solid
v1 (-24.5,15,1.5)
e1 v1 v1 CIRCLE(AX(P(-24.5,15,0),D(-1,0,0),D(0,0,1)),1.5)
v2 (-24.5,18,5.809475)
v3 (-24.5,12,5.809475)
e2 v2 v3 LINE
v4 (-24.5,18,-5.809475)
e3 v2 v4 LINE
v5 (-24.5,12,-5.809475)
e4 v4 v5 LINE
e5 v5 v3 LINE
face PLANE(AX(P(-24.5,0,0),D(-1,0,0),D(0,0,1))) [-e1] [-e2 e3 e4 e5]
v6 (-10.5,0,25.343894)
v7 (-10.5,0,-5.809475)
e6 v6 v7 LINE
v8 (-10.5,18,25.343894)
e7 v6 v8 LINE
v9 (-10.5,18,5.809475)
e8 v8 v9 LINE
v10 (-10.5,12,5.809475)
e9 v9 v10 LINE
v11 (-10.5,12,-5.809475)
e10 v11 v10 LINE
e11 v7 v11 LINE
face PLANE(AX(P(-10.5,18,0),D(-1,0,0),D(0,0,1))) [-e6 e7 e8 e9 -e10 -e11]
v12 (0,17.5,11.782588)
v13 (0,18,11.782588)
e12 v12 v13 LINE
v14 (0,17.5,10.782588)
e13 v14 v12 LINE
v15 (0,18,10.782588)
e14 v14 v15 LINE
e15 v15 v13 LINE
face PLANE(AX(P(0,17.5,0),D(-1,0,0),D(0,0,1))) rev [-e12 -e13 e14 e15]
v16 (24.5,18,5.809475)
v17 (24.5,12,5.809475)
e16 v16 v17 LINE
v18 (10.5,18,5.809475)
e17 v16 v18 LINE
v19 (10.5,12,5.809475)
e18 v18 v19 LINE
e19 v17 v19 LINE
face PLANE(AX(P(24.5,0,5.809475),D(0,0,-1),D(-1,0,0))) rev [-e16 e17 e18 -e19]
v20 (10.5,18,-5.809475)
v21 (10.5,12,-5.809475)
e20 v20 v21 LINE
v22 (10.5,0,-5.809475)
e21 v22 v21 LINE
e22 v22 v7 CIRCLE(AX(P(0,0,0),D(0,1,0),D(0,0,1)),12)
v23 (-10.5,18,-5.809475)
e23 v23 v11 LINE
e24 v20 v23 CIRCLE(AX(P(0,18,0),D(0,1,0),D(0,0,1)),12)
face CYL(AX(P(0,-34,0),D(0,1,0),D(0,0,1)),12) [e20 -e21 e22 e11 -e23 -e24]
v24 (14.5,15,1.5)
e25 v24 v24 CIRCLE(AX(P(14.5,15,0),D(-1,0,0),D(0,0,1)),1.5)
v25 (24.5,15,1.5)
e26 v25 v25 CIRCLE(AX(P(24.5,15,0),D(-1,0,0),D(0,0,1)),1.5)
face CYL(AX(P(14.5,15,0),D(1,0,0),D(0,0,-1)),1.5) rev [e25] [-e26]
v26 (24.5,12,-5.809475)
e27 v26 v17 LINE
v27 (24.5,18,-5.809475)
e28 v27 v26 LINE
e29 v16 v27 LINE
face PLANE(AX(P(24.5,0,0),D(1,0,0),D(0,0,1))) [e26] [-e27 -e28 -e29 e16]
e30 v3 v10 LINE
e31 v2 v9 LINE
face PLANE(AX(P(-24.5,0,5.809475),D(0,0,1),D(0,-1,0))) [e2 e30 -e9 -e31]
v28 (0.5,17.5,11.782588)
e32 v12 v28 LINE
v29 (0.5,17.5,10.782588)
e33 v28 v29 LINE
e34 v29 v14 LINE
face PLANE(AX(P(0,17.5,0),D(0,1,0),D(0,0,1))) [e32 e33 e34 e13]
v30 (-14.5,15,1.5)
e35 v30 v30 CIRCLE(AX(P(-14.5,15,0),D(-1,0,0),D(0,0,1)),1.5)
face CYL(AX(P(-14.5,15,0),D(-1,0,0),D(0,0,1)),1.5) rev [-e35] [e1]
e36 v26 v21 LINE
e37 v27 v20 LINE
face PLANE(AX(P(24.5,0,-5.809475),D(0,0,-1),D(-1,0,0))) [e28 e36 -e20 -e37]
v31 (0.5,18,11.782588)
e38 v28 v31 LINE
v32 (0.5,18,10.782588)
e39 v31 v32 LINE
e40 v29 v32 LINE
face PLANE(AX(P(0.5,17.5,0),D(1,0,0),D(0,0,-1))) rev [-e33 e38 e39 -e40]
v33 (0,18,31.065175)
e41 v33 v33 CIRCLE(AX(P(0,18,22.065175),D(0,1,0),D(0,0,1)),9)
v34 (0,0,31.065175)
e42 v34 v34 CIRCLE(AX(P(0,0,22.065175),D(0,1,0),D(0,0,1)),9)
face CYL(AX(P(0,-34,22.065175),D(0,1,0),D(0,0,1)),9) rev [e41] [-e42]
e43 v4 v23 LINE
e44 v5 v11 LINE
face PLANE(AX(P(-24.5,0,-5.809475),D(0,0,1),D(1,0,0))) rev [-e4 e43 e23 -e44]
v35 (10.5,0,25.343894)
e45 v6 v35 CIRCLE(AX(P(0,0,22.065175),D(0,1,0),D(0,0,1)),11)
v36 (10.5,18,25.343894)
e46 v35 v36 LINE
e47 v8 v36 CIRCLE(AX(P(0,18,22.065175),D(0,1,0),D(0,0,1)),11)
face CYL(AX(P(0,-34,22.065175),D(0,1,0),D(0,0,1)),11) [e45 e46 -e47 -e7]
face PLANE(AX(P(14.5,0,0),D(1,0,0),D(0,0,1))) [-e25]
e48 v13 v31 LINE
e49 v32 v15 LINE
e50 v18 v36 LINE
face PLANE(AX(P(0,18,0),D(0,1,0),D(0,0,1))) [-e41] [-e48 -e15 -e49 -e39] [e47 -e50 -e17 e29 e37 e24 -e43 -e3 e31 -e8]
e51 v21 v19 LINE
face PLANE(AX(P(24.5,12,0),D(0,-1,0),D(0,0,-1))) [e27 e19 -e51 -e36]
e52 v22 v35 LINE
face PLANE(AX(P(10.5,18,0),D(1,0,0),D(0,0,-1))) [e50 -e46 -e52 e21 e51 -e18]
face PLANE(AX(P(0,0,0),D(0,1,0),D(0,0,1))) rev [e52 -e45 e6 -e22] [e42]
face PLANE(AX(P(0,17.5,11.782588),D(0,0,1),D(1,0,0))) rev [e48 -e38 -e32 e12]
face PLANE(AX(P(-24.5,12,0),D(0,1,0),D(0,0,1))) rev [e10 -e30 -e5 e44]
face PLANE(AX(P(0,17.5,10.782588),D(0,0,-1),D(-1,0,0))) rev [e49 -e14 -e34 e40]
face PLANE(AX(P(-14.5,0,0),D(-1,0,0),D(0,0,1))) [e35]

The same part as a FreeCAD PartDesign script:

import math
import FreeCAD as App
import Part
import Sketcher

V = App.Vector
Q = App.Units.Quantity


def add_polygon(sketch, points):
    """Adds a closed chain of lines whose ends are joined by coincident constraints."""
    first, n = sketch.GeometryCount, len(points)
    for a, b in zip(points, points[1:] + points[:1]):
        sketch.addGeometry(Part.LineSegment(App.Vector(*a, 0), App.Vector(*b, 0)), False)
    for i in range(n):
        sketch.addConstraint(Sketcher.Constraint("Coincident", first + i, 2, first + (i + 1) % n, 1))

doc = App.newDocument("Part")
body = doc.addObject("PartDesign::Body", "Body")

# Sketch on XZ plane
sketch1 = body.newObject("Sketcher::SketchObject", "Sketch")
sketch1.AttachmentSupport = (doc.getObject("XZ_Plane"), [""])
sketch1.MapMode = "FlatFace"
add_polygon(sketch1, [(-10.5, -12), (-10.5, 33.065175), (10.5, 33.065175), (10.5, -12)])  # lines 0-3
sketch1.addConstraint([
    Sketcher.Constraint("Vertical", 0),
    Sketcher.Constraint("Horizontal", 1),
    Sketcher.Constraint("Vertical", 2),
    Sketcher.Constraint("Horizontal", 3),
    Sketcher.Constraint("DistanceX", 1, 1, 1, 2, Q("21 mm")),
    Sketcher.Constraint("DistanceY", 2, 2, -1, 1, Q("12 mm")),
    Sketcher.Constraint("DistanceX", 0, 2, -1, 1, Q("10.5 mm")),
    Sketcher.Constraint("DistanceY", 0, 1, 0, 2, Q("45.065175 mm")),
])
pad1 = body.newObject("PartDesign::Pad", "Pad")
pad1.Profile = sketch1
pad1.Length = 18
pad1.Reversed = True

# Sketch on XZ plane
sketch2 = body.newObject("Sketcher::SketchObject", "Sketch001")
sketch2.AttachmentSupport = (doc.getObject("XZ_Plane"), [""])
sketch2.MapMode = "FlatFace"
sketch2.AttachmentOffset = App.Placement(V(0, 0, -18), App.Rotation())
sketch2.addGeometry([
    Part.LineSegment(V(0, 33.065175, 0), V(10.5, 33.065175, 0)),  # 0
    Part.LineSegment(V(10.5, 33.065175, 0), V(10.5, 25.343894, 0)),  # 1
    Part.ArcOfCircle(Part.Circle(V(0, 22.065175, 0), V(0, 0, 1), 11), math.radians(17.341443), math.radians(90)),  # 2
    Part.Circle(V(0, 22.065175, 0), V(0, 0, 1), 9),  # 3
    Part.LineSegment(V(-10.5, 33.065175, 0), V(0, 33.065175, 0)),  # 4
    Part.ArcOfCircle(Part.Circle(V(0, 22.065175, 0), V(0, 0, 1), 11), math.radians(90), math.radians(162.658557)),  # 5
    Part.LineSegment(V(-10.5, 25.343894, 0), V(-10.5, 33.065175, 0)),  # 6
], False)
sketch2.addConstraint([
    Sketcher.Constraint("Coincident", 0, 2, 1, 1),
    Sketcher.Constraint("Coincident", 1, 2, 2, 1),
    Sketcher.Constraint("Tangent", 2, 2, 0, 1),
    Sketcher.Constraint("Tangent", 4, 2, 5, 1),
    Sketcher.Constraint("Coincident", 5, 2, 6, 1),
    Sketcher.Constraint("Coincident", 6, 2, 4, 1),
    Sketcher.Constraint("Horizontal", 0),
    Sketcher.Constraint("Vertical", 1),
    Sketcher.Constraint("Horizontal", 4),
    Sketcher.Constraint("Vertical", 6),
    Sketcher.Constraint("Coincident", 3, 3, 2, 3),
    Sketcher.Constraint("Coincident", 5, 3, 2, 3),
    Sketcher.Constraint("Equal", 2, 5),
    Sketcher.Constraint("Symmetric", 1, 2, 5, 2, -2),
    Sketcher.Constraint("Diameter", 3, Q("18 mm")),
    Sketcher.Constraint("Radius", 2, Q("11 mm")),
    Sketcher.Constraint("DistanceX", 0, 1, 0, 2, Q("10.5 mm")),
    Sketcher.Constraint("DistanceY", -1, 1, 2, 3, Q("22.065175 mm")),
])
pocket1 = body.newObject("PartDesign::Pocket", "Pocket")
pocket1.Profile = sketch2
pocket1.Length = 52
pocket1.Reversed = True

# Sketch on XZ plane
sketch3 = body.newObject("Sketcher::SketchObject", "Sketch002")
sketch3.AttachmentSupport = (doc.getObject("XZ_Plane"), [""])
sketch3.MapMode = "FlatFace"
sketch3.AttachmentOffset = App.Placement(V(0, 0, -18), App.Rotation())
sketch3.addGeometry([
    Part.LineSegment(V(0, -12, 0), V(-10.5, -12, 0)),  # 0
    Part.LineSegment(V(-10.5, -12, 0), V(-10.5, -5.809475, 0)),  # 1
    Part.ArcOfCircle(Part.Circle(V(0, 0, 0), V(0, 0, 1), 12), math.radians(-151.044976), math.radians(-90)),  # 2
    Part.LineSegment(V(10.5, -12, 0), V(0, -12, 0)),  # 3
    Part.ArcOfCircle(Part.Circle(V(0, 0, 0), V(0, 0, 1), 12), math.radians(-90), math.radians(-28.955024)),  # 4
    Part.LineSegment(V(10.5, -5.809475, 0), V(10.5, -12, 0)),  # 5
], False)
sketch3.addConstraint([
    Sketcher.Constraint("Coincident", 0, 2, 1, 1),
    Sketcher.Constraint("Coincident", 1, 2, 2, 1),
    Sketcher.Constraint("Tangent", 2, 2, 0, 1),
    Sketcher.Constraint("Tangent", 3, 2, 4, 1),
    Sketcher.Constraint("Coincident", 4, 2, 5, 1),
    Sketcher.Constraint("Coincident", 5, 2, 3, 1),
    Sketcher.Constraint("Horizontal", 0),
    Sketcher.Constraint("Vertical", 1),
    Sketcher.Constraint("Horizontal", 3),
    Sketcher.Constraint("Vertical", 5),
    Sketcher.Constraint("Coincident", 2, 3, -1, 1),
    Sketcher.Constraint("Coincident", 4, 3, -1, 1),
    Sketcher.Constraint("Equal", 2, 4),
    Sketcher.Constraint("Horizontal", 1, 2, 4, 2),
    Sketcher.Constraint("Radius", 2, Q("12 mm")),
    Sketcher.Constraint("DistanceX", 0, 2, 0, 1, Q("10.5 mm")),
])
pocket2 = body.newObject("PartDesign::Pocket", "Pocket001")
pocket2.Profile = sketch3
pocket2.Length = 52
pocket2.Reversed = True

# Sketch on YZ plane
sketch4 = body.newObject("Sketcher::SketchObject", "Sketch003")
sketch4.AttachmentSupport = (doc.getObject("YZ_Plane"), [""])
sketch4.MapMode = "FlatFace"
sketch4.AttachmentOffset = App.Placement(V(0, 0, -10.5), App.Rotation())
add_polygon(sketch4, [(12, 5.809475), (18, 5.809475), (18, -5.809475), (12, -5.809475)])  # lines 0-3
sketch4.addConstraint([
    Sketcher.Constraint("Horizontal", 0),
    Sketcher.Constraint("Vertical", 1),
    Sketcher.Constraint("Horizontal", 2),
    Sketcher.Constraint("Vertical", 3),
    Sketcher.Constraint("DistanceX", 0, 1, 0, 2, Q("6 mm")),
    Sketcher.Constraint("DistanceX", -1, 1, 0, 2, Q("18 mm")),
    Sketcher.Constraint("DistanceY", 1, 2, 1, 1, Q("11.61895 mm")),
    Sketcher.Constraint("DistanceY", -1, 1, 0, 2, Q("5.809475 mm")),
])
pad2 = body.newObject("PartDesign::Pad", "Pad001")
pad2.Profile = sketch4
pad2.Length = 14
pad2.Reversed = True

# Sketch on XZ plane
sketch5 = body.newObject("Sketcher::SketchObject", "Sketch004")
sketch5.AttachmentSupport = (doc.getObject("XZ_Plane"), [""])
sketch5.MapMode = "FlatFace"
sketch5.AttachmentOffset = App.Placement(V(0, 0, -18), App.Rotation())
add_polygon(sketch5, [(0, 10.782588), (0, 11.782588), (0.5, 11.782588), (0.5, 10.782588)])  # lines 0-3
sketch5.addConstraint([
    Sketcher.Constraint("Vertical", 0),
    Sketcher.Constraint("Horizontal", 1),
    Sketcher.Constraint("Vertical", 2),
    Sketcher.Constraint("Horizontal", 3),
    Sketcher.Constraint("PointOnObject", 0, 2, -2),
    Sketcher.Constraint("DistanceY", 0, 1, 0, 2, Q("1 mm")),
    Sketcher.Constraint("DistanceX", 1, 1, 1, 2, Q("0.5 mm")),
    Sketcher.Constraint("DistanceY", -1, 1, 0, 2, Q("11.782588 mm")),
])
pocket3 = body.newObject("PartDesign::Pocket", "Pocket002")
pocket3.Profile = sketch5
pocket3.Length = 0.5
pocket3.Reversed = True
doc.recompute()

mirrored = body.newObject("PartDesign::Mirrored", "Mirrored")
mirrored.Originals = [pad2]
mirrored.MirrorPlane = (doc.getObject("YZ_Plane"), [""])
body.Tip = mirrored

# Sketch on YZ plane
sketch6 = body.newObject("Sketcher::SketchObject", "Sketch005")
sketch6.AttachmentSupport = (doc.getObject("YZ_Plane"), [""])
sketch6.MapMode = "FlatFace"
sketch6.AttachmentOffset = App.Placement(V(0, 0, -24.5), App.Rotation())
sketch6.addGeometry([
    Part.ArcOfCircle(Part.Circle(V(15, 0, 0), V(0, 0, 1), 1.5), math.radians(0), math.radians(90)),
    Part.ArcOfCircle(Part.Circle(V(15, 0, 0), V(0, 0, 1), 1.5), math.radians(180), math.radians(360)),
    Part.ArcOfCircle(Part.Circle(V(15, 0, 0), V(0, 0, 1), 1.5), math.radians(90), math.radians(180)),
], False)
sketch6.addConstraint([
    Sketcher.Constraint("Tangent", 0, 1, 1, 2),
    Sketcher.Constraint("Tangent", 1, 1, 2, 2),
    Sketcher.Constraint("Tangent", 2, 1, 0, 2),
    Sketcher.Constraint("PointOnObject", 0, 3, -1),
    Sketcher.Constraint("PointOnObject", 0, 1, -1),
    Sketcher.Constraint("PointOnObject", 1, 1, -1),
    Sketcher.Constraint("Vertical", 1, 3, 2, 1),
    Sketcher.Constraint("Radius", 0, Q("1.5 mm")),
    Sketcher.Constraint("DistanceX", -1, 1, 0, 3, Q("15 mm")),
])
pocket4 = body.newObject("PartDesign::Pocket", "Pocket003")
pocket4.Profile = sketch6
pocket4.Length = 10
pocket4.Reversed = True
doc.recompute()

mirrored2 = body.newObject("PartDesign::Mirrored", "Mirrored001")
mirrored2.Originals = [pocket4]
mirrored2.MirrorPlane = (doc.getObject("YZ_Plane"), [""])
body.Tip = mirrored2

doc.recompute()
